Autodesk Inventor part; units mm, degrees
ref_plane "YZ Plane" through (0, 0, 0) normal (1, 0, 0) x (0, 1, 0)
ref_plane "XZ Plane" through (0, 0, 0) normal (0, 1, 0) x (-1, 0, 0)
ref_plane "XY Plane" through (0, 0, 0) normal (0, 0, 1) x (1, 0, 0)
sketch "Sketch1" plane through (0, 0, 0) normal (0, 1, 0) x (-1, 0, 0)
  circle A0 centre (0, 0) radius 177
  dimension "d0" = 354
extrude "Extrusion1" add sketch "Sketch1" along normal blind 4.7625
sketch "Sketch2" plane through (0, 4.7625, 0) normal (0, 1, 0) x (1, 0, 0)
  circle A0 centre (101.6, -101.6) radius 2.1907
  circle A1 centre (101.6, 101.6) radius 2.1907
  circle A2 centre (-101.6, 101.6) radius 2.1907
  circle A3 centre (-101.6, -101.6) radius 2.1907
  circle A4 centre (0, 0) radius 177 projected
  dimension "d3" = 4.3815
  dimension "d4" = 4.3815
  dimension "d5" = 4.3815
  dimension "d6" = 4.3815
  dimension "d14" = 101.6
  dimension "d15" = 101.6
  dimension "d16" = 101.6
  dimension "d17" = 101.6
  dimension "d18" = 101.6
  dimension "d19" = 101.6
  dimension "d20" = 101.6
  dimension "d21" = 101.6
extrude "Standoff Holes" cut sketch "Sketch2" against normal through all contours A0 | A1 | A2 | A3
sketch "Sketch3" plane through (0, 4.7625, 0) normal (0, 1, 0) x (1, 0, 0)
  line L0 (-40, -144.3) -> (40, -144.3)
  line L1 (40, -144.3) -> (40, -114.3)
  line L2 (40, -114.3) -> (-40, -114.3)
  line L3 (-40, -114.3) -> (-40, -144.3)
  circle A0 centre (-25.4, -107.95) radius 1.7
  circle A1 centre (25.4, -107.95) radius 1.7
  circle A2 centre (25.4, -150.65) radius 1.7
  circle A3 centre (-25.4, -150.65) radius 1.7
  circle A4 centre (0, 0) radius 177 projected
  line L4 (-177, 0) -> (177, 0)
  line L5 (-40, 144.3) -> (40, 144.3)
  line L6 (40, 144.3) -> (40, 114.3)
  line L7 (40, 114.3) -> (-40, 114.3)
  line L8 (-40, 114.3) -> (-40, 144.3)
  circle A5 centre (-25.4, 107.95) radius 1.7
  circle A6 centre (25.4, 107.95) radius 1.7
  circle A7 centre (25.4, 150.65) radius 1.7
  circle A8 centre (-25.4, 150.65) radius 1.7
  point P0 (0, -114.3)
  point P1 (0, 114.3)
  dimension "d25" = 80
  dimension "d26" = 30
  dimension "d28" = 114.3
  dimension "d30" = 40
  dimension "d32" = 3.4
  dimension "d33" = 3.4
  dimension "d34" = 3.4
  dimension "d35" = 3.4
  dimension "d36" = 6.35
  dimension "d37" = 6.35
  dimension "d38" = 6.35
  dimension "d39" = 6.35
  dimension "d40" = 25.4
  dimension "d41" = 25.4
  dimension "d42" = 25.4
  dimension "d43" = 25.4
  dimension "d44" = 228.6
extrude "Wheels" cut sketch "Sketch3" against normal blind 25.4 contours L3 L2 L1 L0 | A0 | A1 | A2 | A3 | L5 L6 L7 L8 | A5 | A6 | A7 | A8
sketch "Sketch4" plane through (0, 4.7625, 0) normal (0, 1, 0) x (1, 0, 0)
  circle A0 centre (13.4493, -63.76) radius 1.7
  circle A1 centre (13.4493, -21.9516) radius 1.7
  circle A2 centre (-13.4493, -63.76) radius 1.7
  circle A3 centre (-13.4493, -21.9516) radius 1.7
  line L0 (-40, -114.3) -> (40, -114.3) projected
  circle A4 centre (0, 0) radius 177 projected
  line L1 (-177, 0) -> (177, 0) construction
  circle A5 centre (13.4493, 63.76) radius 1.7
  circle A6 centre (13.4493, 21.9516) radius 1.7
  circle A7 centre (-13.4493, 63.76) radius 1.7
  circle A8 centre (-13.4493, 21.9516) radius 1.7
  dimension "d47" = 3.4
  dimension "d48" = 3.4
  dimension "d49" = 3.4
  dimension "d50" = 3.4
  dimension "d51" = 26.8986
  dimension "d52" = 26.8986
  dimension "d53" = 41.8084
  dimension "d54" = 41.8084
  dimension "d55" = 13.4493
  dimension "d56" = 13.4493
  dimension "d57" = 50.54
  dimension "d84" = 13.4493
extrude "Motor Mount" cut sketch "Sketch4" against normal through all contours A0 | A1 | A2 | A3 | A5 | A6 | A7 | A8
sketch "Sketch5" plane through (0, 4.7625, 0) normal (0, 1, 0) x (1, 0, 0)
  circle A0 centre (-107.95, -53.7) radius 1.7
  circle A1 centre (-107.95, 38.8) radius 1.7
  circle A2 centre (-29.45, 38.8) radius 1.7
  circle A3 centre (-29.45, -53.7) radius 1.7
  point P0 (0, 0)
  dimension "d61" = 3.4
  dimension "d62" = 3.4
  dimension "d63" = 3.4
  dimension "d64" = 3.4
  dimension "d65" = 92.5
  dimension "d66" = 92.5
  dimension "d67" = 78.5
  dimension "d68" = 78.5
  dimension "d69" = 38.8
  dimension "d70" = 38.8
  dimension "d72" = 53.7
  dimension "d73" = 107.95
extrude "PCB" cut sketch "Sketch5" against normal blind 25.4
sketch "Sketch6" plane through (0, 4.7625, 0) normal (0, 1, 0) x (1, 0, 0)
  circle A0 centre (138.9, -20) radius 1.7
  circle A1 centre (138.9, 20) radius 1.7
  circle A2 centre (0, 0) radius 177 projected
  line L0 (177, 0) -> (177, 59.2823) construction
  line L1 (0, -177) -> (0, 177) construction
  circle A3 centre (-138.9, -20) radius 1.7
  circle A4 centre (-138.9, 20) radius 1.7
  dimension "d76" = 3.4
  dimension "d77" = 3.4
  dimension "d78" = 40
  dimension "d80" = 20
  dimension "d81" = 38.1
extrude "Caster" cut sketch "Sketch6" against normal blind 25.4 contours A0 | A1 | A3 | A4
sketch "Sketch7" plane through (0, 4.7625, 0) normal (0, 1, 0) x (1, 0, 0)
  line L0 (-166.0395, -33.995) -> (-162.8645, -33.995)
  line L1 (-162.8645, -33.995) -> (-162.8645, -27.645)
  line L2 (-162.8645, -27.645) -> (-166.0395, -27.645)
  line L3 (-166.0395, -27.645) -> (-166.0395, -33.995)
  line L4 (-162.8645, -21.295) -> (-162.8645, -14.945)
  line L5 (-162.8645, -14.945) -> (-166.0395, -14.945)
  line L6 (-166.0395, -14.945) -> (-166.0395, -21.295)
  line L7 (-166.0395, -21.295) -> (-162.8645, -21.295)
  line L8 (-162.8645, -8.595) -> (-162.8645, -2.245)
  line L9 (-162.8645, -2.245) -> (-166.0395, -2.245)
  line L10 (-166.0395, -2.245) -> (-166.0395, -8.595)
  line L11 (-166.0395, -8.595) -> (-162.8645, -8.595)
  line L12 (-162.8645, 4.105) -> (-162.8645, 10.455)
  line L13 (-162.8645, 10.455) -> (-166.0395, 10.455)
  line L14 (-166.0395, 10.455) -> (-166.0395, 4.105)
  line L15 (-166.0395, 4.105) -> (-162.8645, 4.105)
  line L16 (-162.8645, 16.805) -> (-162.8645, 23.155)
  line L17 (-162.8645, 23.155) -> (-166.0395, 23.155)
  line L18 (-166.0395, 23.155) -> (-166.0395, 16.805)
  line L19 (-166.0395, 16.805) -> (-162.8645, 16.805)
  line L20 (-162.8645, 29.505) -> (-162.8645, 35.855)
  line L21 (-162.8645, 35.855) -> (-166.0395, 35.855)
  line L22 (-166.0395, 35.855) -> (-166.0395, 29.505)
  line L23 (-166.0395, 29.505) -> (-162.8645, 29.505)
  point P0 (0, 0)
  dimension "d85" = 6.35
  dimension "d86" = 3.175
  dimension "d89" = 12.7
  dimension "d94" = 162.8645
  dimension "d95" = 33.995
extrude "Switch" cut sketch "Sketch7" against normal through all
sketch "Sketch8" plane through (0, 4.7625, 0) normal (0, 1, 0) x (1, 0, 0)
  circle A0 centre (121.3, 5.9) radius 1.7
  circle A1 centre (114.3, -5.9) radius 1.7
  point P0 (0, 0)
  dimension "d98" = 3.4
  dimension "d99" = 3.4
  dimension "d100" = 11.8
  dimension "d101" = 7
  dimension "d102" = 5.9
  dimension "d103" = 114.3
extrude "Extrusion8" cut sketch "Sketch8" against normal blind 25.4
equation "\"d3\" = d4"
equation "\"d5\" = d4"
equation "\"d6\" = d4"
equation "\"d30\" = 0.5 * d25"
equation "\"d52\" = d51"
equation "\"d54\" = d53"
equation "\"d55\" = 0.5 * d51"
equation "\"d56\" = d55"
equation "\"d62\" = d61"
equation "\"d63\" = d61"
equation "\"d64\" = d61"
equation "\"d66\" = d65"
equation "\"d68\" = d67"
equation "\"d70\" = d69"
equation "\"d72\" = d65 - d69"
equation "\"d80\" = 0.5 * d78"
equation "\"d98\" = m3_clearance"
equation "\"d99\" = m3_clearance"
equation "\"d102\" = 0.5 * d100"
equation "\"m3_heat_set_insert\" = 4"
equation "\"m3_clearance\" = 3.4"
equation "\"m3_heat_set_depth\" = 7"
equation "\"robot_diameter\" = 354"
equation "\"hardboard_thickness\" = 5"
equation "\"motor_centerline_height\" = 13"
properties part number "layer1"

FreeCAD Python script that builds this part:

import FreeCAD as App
import Part
import Sketcher
from FreeCAD import Vector
Q = App.Units.Quantity

doc = App.newDocument("Part")
body = doc.addObject("PartDesign::Body", "Body")

# Sketch on XZ plane
sketch1 = body.newObject("Sketcher::SketchObject", "Sketch")
sketch1.AttachmentSupport = (doc.getObject("XZ_Plane"), [""])
sketch1.MapMode = "FlatFace"
sketch1.addGeometry(Part.Circle(Vector(0, 0, 0), Vector(0, 0, 1), 177), False)
sketch1.addConstraint(Sketcher.Constraint("Coincident", 0, 3, -1, 1))
sketch1.addConstraint(Sketcher.Constraint("Diameter", 0, Q("13.937 in")))
pad1 = body.newObject("PartDesign::Pad", "Pad")
pad1.Profile = sketch1
pad1.Length = Q("0.1875 in")
pad1.Reversed = True

# Sketch on XZ plane
sketch2 = body.newObject("Sketcher::SketchObject", "Sketch001")
sketch2.AttachmentSupport = (doc.getObject("XZ_Plane"), [""])
sketch2.MapMode = "FlatFace"
sketch2.AttachmentOffset = App.Placement(Vector(0, 0, -0.1875 * 25.4), App.Rotation())
sketch2.addGeometry(Part.Circle(Vector(101.6, 101.6, 0), Vector(0, 0, 1), 2.2), False)
sketch2.addGeometry(Part.Circle(Vector(101.6, -101.6, 0), Vector(0, 0, 1), 2.2), False)
sketch2.addGeometry(Part.Circle(Vector(-101.6, -101.6, 0), Vector(0, 0, 1), 2.2), False)
sketch2.addGeometry(Part.Circle(Vector(-101.6, 101.6, 0), Vector(0, 0, 1), 2.2), False)
sketch2.addConstraint(Sketcher.Constraint("Equal", 0, 1))
sketch2.addConstraint(Sketcher.Constraint("Equal", 1, 2))
sketch2.addConstraint(Sketcher.Constraint("Equal", 2, 3))
sketch2.addConstraint(Sketcher.Constraint("Symmetric", 0, 3, 2, 3, -1, 1))
sketch2.addConstraint(Sketcher.Constraint("Symmetric", 1, 3, 3, 3, -1, 1))
sketch2.addConstraint(Sketcher.Constraint("Symmetric", 1, 3, 2, 3, -2))
sketch2.addConstraint(Sketcher.Constraint("DistanceX", -1, 1, 0, 3, Q("4 in")))
sketch2.addConstraint(Sketcher.Constraint("DistanceY", -1, 1, 0, 3, Q("4 in")))
sketch2.addConstraint(Sketcher.Constraint("Diameter", 0, Q("0.1725 in")))
pocket1 = body.newObject("PartDesign::Pocket", "Pocket")
pocket1.Profile = sketch2
pocket1.Type = "ThroughAll"
pocket1.Reversed = True

# Sketch on XZ plane
sketch3 = body.newObject("Sketcher::SketchObject", "Sketch002")
sketch3.AttachmentSupport = (doc.getObject("XZ_Plane"), [""])
sketch3.MapMode = "FlatFace"
sketch3.AttachmentOffset = App.Placement(Vector(0, 0, -0.1875 * 25.4), App.Rotation())
sketch3.addGeometry(Part.LineSegment(Vector(-40, 114.3, 0), Vector(-40, 144.3, 0)), False)
sketch3.addGeometry(Part.LineSegment(Vector(-40, 144.3, 0), Vector(40, 144.3, 0)), False)
sketch3.addGeometry(Part.LineSegment(Vector(40, 144.3, 0), Vector(40, 114.3, 0)), False)
sketch3.addGeometry(Part.LineSegment(Vector(40, 114.3, 0), Vector(-40, 114.3, 0)), False)
sketch3.addGeometry(Part.Circle(Vector(-25.4, 108, 0), Vector(0, 0, 1), 1.7), False)
sketch3.addGeometry(Part.Circle(Vector(25.4, 108, 0), Vector(0, 0, 1), 1.7), False)
sketch3.addGeometry(Part.Circle(Vector(25.4, 150.7, 0), Vector(0, 0, 1), 1.7), False)
sketch3.addGeometry(Part.Circle(Vector(-25.4, 150.7, 0), Vector(0, 0, 1), 1.7), False)
sketch3.addGeometry(Part.LineSegment(Vector(40, -144.3, 0), Vector(-40, -144.3, 0)), False)
sketch3.addGeometry(Part.LineSegment(Vector(-40, -144.3, 0), Vector(-40, -114.3, 0)), False)
sketch3.addGeometry(Part.LineSegment(Vector(-40, -114.3, 0), Vector(40, -114.3, 0)), False)
sketch3.addGeometry(Part.LineSegment(Vector(40, -114.3, 0), Vector(40, -144.3, 0)), False)
sketch3.addGeometry(Part.Circle(Vector(-25.4, -108, 0), Vector(0, 0, 1), 1.7), False)
sketch3.addGeometry(Part.Circle(Vector(25.4, -108, 0), Vector(0, 0, 1), 1.7), False)
sketch3.addGeometry(Part.Circle(Vector(25.4, -150.7, 0), Vector(0, 0, 1), 1.7), False)
sketch3.addGeometry(Part.Circle(Vector(-25.4, -150.7, 0), Vector(0, 0, 1), 1.7), False)
sketch3.addConstraint(Sketcher.Constraint("Coincident", 0, 2, 1, 1))
sketch3.addConstraint(Sketcher.Constraint("Coincident", 1, 2, 2, 1))
sketch3.addConstraint(Sketcher.Constraint("Coincident", 2, 2, 3, 1))
sketch3.addConstraint(Sketcher.Constraint("Coincident", 3, 2, 0, 1))
sketch3.addConstraint(Sketcher.Constraint("Coincident", 8, 2, 9, 1))
sketch3.addConstraint(Sketcher.Constraint("Coincident", 9, 2, 10, 1))
sketch3.addConstraint(Sketcher.Constraint("Coincident", 10, 2, 11, 1))
sketch3.addConstraint(Sketcher.Constraint("Coincident", 11, 2, 8, 1))
sketch3.addConstraint(Sketcher.Constraint("Vertical", 0))
sketch3.addConstraint(Sketcher.Constraint("Horizontal", 1))
sketch3.addConstraint(Sketcher.Constraint("Vertical", 2))
sketch3.addConstraint(Sketcher.Constraint("Horizontal", 3))
sketch3.addConstraint(Sketcher.Constraint("Horizontal", 8))
sketch3.addConstraint(Sketcher.Constraint("Vertical", 9))
sketch3.addConstraint(Sketcher.Constraint("Horizontal", 10))
sketch3.addConstraint(Sketcher.Constraint("Vertical", 11))
sketch3.addConstraint(Sketcher.Constraint("Equal", 4, 5))
sketch3.addConstraint(Sketcher.Constraint("Equal", 5, 6))
sketch3.addConstraint(Sketcher.Constraint("Equal", 6, 7))
sketch3.addConstraint(Sketcher.Constraint("Equal", 7, 12))
sketch3.addConstraint(Sketcher.Constraint("Equal", 12, 13))
sketch3.addConstraint(Sketcher.Constraint("Equal", 13, 14))
sketch3.addConstraint(Sketcher.Constraint("Equal", 14, 15))
sketch3.addConstraint(Sketcher.Constraint("Symmetric", 5, 3, 12, 3, -1, 1))
sketch3.addConstraint(Sketcher.Constraint("Symmetric", 4, 3, 13, 3, -1, 1))
sketch3.addConstraint(Sketcher.Constraint("Symmetric", 7, 3, 14, 3, -1, 1))
sketch3.addConstraint(Sketcher.Constraint("Symmetric", 6, 3, 15, 3, -1, 1))
sketch3.addConstraint(Sketcher.Constraint("Symmetric", 1, 2, 8, 2, -1, 1))
sketch3.addConstraint(Sketcher.Constraint("Symmetric", 3, 2, 10, 2, -1, 1))
sketch3.addConstraint(Sketcher.Constraint("Symmetric", 4, 3, 5, 3, -2))
sketch3.addConstraint(Sketcher.Constraint("Symmetric", 6, 3, 7, 3, -2))
sketch3.addConstraint(Sketcher.Constraint("Vertical", 5, 3, 6, 3))
sketch3.addConstraint(Sketcher.Constraint("Vertical", 3, 2, 8, 2))
sketch3.addConstraint(Sketcher.Constraint("DistanceX", 4, 3, -1, 1, Q("1 in")))
sketch3.addConstraint(Sketcher.Constraint("DistanceY", -1, 1, 2, 2, Q("4.5 in")))
sketch3.addConstraint(Sketcher.Constraint("Diameter", 4, 3.4))
sketch3.addConstraint(Sketcher.Constraint("DistanceY", 0, 2, 7, 3, Q("0.25 in")))
sketch3.addConstraint(Sketcher.Constraint("DistanceY", 5, 3, 2, 2, Q("0.25 in")))
sketch3.addConstraint(Sketcher.Constraint("DistanceX", 1, 1, 1, 2, Q("3.1496 in")))
sketch3.addConstraint(Sketcher.Constraint("DistanceY", 0, 1, 0, 2, Q("1.1811 in")))
pocket2 = body.newObject("PartDesign::Pocket", "Pocket001")
pocket2.Profile = sketch3
pocket2.Length = Q("1 in")
pocket2.Reversed = True

# Sketch on XZ plane
sketch4 = body.newObject("Sketcher::SketchObject", "Sketch003")
sketch4.AttachmentSupport = (doc.getObject("XZ_Plane"), [""])
sketch4.MapMode = "FlatFace"
sketch4.AttachmentOffset = App.Placement(Vector(0, 0, -0.1875 * 25.4), App.Rotation())
sketch4.addGeometry(Part.Circle(Vector(13.4, 63.8, 0), Vector(0, 0, 1), 1.7), False)
sketch4.addGeometry(Part.Circle(Vector(13.4, 22, 0), Vector(0, 0, 1), 1.7), False)
sketch4.addGeometry(Part.Circle(Vector(-13.4, 63.8, 0), Vector(0, 0, 1), 1.7), False)
sketch4.addGeometry(Part.Circle(Vector(-13.4, 22, 0), Vector(0, 0, 1), 1.7), False)
sketch4.addGeometry(Part.Circle(Vector(13.4, -63.8, 0), Vector(0, 0, 1), 1.7), False)
sketch4.addGeometry(Part.Circle(Vector(13.4, -22, 0), Vector(0, 0, 1), 1.7), False)
sketch4.addGeometry(Part.Circle(Vector(-13.4, -63.8, 0), Vector(0, 0, 1), 1.7), False)
sketch4.addGeometry(Part.Circle(Vector(-13.4, -22, 0), Vector(0, 0, 1), 1.7), False)
sketch4.addConstraint(Sketcher.Constraint("Equal", 0, 1))
sketch4.addConstraint(Sketcher.Constraint("Equal", 1, 2))
sketch4.addConstraint(Sketcher.Constraint("Equal", 2, 3))
sketch4.addConstraint(Sketcher.Constraint("Equal", 3, 4))
sketch4.addConstraint(Sketcher.Constraint("Equal", 4, 5))
sketch4.addConstraint(Sketcher.Constraint("Equal", 5, 6))
sketch4.addConstraint(Sketcher.Constraint("Equal", 6, 7))
sketch4.addConstraint(Sketcher.Constraint("Symmetric", 2, 3, 4, 3, -1, 1))
sketch4.addConstraint(Sketcher.Constraint("Symmetric", 3, 3, 5, 3, -1, 1))
sketch4.addConstraint(Sketcher.Constraint("Symmetric", 0, 3, 6, 3, -1, 1))
sketch4.addConstraint(Sketcher.Constraint("Symmetric", 1, 3, 7, 3, -1, 1))
sketch4.addConstraint(Sketcher.Constraint("Symmetric", 0, 3, 2, 3, -2))
sketch4.addConstraint(Sketcher.Constraint("Symmetric", 1, 3, 3, 3, -2))
sketch4.addConstraint(Sketcher.Constraint("Vertical", 0, 3, 1, 3))
sketch4.addConstraint(Sketcher.Constraint("Diameter", 0, 3.4))
sketch4.addConstraint(Sketcher.Constraint("DistanceY", 1, 3, 0, 3, Q("1.646 in")))
sketch4.addConstraint(Sketcher.Constraint("DistanceX", 2, 3, 0, 3, Q("1.059 in")))
sketch4.addConstraint(Sketcher.Constraint("DistanceY", -1, 1, 0, 3, 63.76))
pocket3 = body.newObject("PartDesign::Pocket", "Pocket002")
pocket3.Profile = sketch4
pocket3.Type = "ThroughAll"
pocket3.Reversed = True

# Sketch on XZ plane
sketch5 = body.newObject("Sketcher::SketchObject", "Sketch004")
sketch5.AttachmentSupport = (doc.getObject("XZ_Plane"), [""])
sketch5.MapMode = "FlatFace"
sketch5.AttachmentOffset = App.Placement(Vector(0, 0, -0.1875 * 25.4), App.Rotation())
sketch5.addGeometry(Part.Circle(Vector(-108, 53.7, 0), Vector(0, 0, 1), 1.7), False)
sketch5.addGeometry(Part.Circle(Vector(-108, -38.8, 0), Vector(0, 0, 1), 1.7), False)
sketch5.addGeometry(Part.Circle(Vector(-29.4, -38.8, 0), Vector(0, 0, 1), 1.7), False)
sketch5.addGeometry(Part.Circle(Vector(-29.4, 53.7, 0), Vector(0, 0, 1), 1.7), False)
sketch5.addConstraint(Sketcher.Constraint("Equal", 0, 1))
sketch5.addConstraint(Sketcher.Constraint("Equal", 1, 2))
sketch5.addConstraint(Sketcher.Constraint("Equal", 2, 3))
sketch5.addConstraint(Sketcher.Constraint("Horizontal", 1, 3, 2, 3))
sketch5.addConstraint(Sketcher.Constraint("Horizontal", 0, 3, 3, 3))
sketch5.addConstraint(Sketcher.Constraint("Vertical", 0, 3, 1, 3))
sketch5.addConstraint(Sketcher.Constraint("Vertical", 2, 3, 3, 3))
sketch5.addConstraint(Sketcher.Constraint("Diameter", 0, 3.4))
sketch5.addConstraint(Sketcher.Constraint("DistanceX", 0, 3, -1, 1, Q("4.25 in")))
sketch5.addConstraint(Sketcher.Constraint("DistanceY", -1, 1, 0, 3, 53.7))
sketch5.addConstraint(Sketcher.Constraint("DistanceY", 1, 3, -1, 1, 38.8))
sketch5.addConstraint(Sketcher.Constraint("DistanceX", 1, 3, 2, 3, 78.5))
pocket4 = body.newObject("PartDesign::Pocket", "Pocket003")
pocket4.Profile = sketch5
pocket4.Length = Q("1 in")
pocket4.Reversed = True

# Sketch on XZ plane
sketch6 = body.newObject("Sketcher::SketchObject", "Sketch005")
sketch6.AttachmentSupport = (doc.getObject("XZ_Plane"), [""])
sketch6.MapMode = "FlatFace"
sketch6.AttachmentOffset = App.Placement(Vector(0, 0, -0.1875 * 25.4), App.Rotation())
sketch6.addGeometry(Part.Circle(Vector(138.9, 20, 0), Vector(0, 0, 1), 1.7), False)
sketch6.addGeometry(Part.Circle(Vector(138.9, -20, 0), Vector(0, 0, 1), 1.7), False)
sketch6.addGeometry(Part.Circle(Vector(-138.9, 20, 0), Vector(0, 0, 1), 1.7), False)
sketch6.addGeometry(Part.Circle(Vector(-138.9, -20, 0), Vector(0, 0, 1), 1.7), False)
sketch6.addConstraint(Sketcher.Constraint("Equal", 0, 1))
sketch6.addConstraint(Sketcher.Constraint("Equal", 1, 2))
sketch6.addConstraint(Sketcher.Constraint("Equal", 2, 3))
sketch6.addConstraint(Sketcher.Constraint("Symmetric", 1, 3, 2, 3, -1, 1))
sketch6.addConstraint(Sketcher.Constraint("Symmetric", 0, 3, 3, 3, -1, 1))
sketch6.addConstraint(Sketcher.Constraint("Symmetric", 0, 3, 2, 3, -2))
sketch6.addConstraint(Sketcher.Constraint("Diameter", 0, 3.4))
sketch6.addConstraint(Sketcher.Constraint("DistanceY", -1, 1, 0, 3, Q("0.7874 in")))
sketch6.addConstraint(Sketcher.Constraint("DistanceX", 2, 3, 0, 3, Q("10.937 in")))
pocket5 = body.newObject("PartDesign::Pocket", "Pocket004")
pocket5.Profile = sketch6
pocket5.Length = Q("1 in")
pocket5.Reversed = True

# Sketch on XZ plane
sketch7 = body.newObject("Sketcher::SketchObject", "Sketch006")
sketch7.AttachmentSupport = (doc.getObject("XZ_Plane"), [""])
sketch7.MapMode = "FlatFace"
sketch7.AttachmentOffset = App.Placement(Vector(0, 0, -0.1875 * 25.4), App.Rotation())
sketch7.addGeometry(Part.LineSegment(Vector(-166, 27.6, 0), Vector(-166, 34, 0)), False)
sketch7.addGeometry(Part.LineSegment(Vector(-166, 34, 0), Vector(-162.9, 34, 0)), False)
sketch7.addGeometry(Part.LineSegment(Vector(-162.9, 34, 0), Vector(-162.9, 27.6, 0)), False)
sketch7.addGeometry(Part.LineSegment(Vector(-162.9, 27.6, 0), Vector(-166, 27.6, 0)), False)
sketch7.addGeometry(Part.LineSegment(Vector(-166, 21.3, 0), Vector(-162.9, 21.3, 0)), False)
sketch7.addGeometry(Part.LineSegment(Vector(-162.9, 21.3, 0), Vector(-162.9, 14.9, 0)), False)
sketch7.addGeometry(Part.LineSegment(Vector(-162.9, 14.9, 0), Vector(-166, 14.9, 0)), False)
sketch7.addGeometry(Part.LineSegment(Vector(-166, 14.9, 0), Vector(-166, 21.3, 0)), False)
sketch7.addGeometry(Part.LineSegment(Vector(-166, 8.6, 0), Vector(-162.9, 8.6, 0)), False)
sketch7.addGeometry(Part.LineSegment(Vector(-162.9, 8.6, 0), Vector(-162.9, 2.2, 0)), False)
sketch7.addGeometry(Part.LineSegment(Vector(-162.9, 2.2, 0), Vector(-166, 2.2, 0)), False)
sketch7.addGeometry(Part.LineSegment(Vector(-166, 2.2, 0), Vector(-166, 8.6, 0)), False)
sketch7.addGeometry(Part.LineSegment(Vector(-166, -4.1, 0), Vector(-162.9, -4.1, 0)), False)
sketch7.addGeometry(Part.LineSegment(Vector(-162.9, -4.1, 0), Vector(-162.9, -10.5, 0)), False)
sketch7.addGeometry(Part.LineSegment(Vector(-162.9, -10.5, 0), Vector(-166, -10.5, 0)), False)
sketch7.addGeometry(Part.LineSegment(Vector(-166, -10.5, 0), Vector(-166, -4.1, 0)), False)
sketch7.addGeometry(Part.LineSegment(Vector(-166, -16.8, 0), Vector(-162.9, -16.8, 0)), False)
sketch7.addGeometry(Part.LineSegment(Vector(-162.9, -16.8, 0), Vector(-162.9, -23.2, 0)), False)
sketch7.addGeometry(Part.LineSegment(Vector(-162.9, -23.2, 0), Vector(-166, -23.2, 0)), False)
sketch7.addGeometry(Part.LineSegment(Vector(-166, -23.2, 0), Vector(-166, -16.8, 0)), False)
sketch7.addGeometry(Part.LineSegment(Vector(-166, -29.5, 0), Vector(-162.9, -29.5, 0)), False)
sketch7.addGeometry(Part.LineSegment(Vector(-162.9, -29.5, 0), Vector(-162.9, -35.9, 0)), False)
sketch7.addGeometry(Part.LineSegment(Vector(-162.9, -35.9, 0), Vector(-166, -35.9, 0)), False)
sketch7.addGeometry(Part.LineSegment(Vector(-166, -35.9, 0), Vector(-166, -29.5, 0)), False)
sketch7.addConstraint(Sketcher.Constraint("Coincident", 0, 2, 1, 1))
sketch7.addConstraint(Sketcher.Constraint("Coincident", 1, 2, 2, 1))
sketch7.addConstraint(Sketcher.Constraint("Coincident", 2, 2, 3, 1))
sketch7.addConstraint(Sketcher.Constraint("Coincident", 3, 2, 0, 1))
sketch7.addConstraint(Sketcher.Constraint("Coincident", 4, 2, 5, 1))
sketch7.addConstraint(Sketcher.Constraint("Coincident", 5, 2, 6, 1))
sketch7.addConstraint(Sketcher.Constraint("Coincident", 6, 2, 7, 1))
sketch7.addConstraint(Sketcher.Constraint("Coincident", 7, 2, 4, 1))
sketch7.addConstraint(Sketcher.Constraint("Coincident", 8, 2, 9, 1))
sketch7.addConstraint(Sketcher.Constraint("Coincident", 9, 2, 10, 1))
sketch7.addConstraint(Sketcher.Constraint("Coincident", 10, 2, 11, 1))
sketch7.addConstraint(Sketcher.Constraint("Coincident", 11, 2, 8, 1))
sketch7.addConstraint(Sketcher.Constraint("Coincident", 12, 2, 13, 1))
sketch7.addConstraint(Sketcher.Constraint("Coincident", 13, 2, 14, 1))
sketch7.addConstraint(Sketcher.Constraint("Coincident", 14, 2, 15, 1))
sketch7.addConstraint(Sketcher.Constraint("Coincident", 15, 2, 12, 1))
sketch7.addConstraint(Sketcher.Constraint("Coincident", 16, 2, 17, 1))
sketch7.addConstraint(Sketcher.Constraint("Coincident", 17, 2, 18, 1))
sketch7.addConstraint(Sketcher.Constraint("Coincident", 18, 2, 19, 1))
sketch7.addConstraint(Sketcher.Constraint("Coincident", 19, 2, 16, 1))
sketch7.addConstraint(Sketcher.Constraint("Coincident", 20, 2, 21, 1))
sketch7.addConstraint(Sketcher.Constraint("Coincident", 21, 2, 22, 1))
sketch7.addConstraint(Sketcher.Constraint("Coincident", 22, 2, 23, 1))
sketch7.addConstraint(Sketcher.Constraint("Coincident", 23, 2, 20, 1))
sketch7.addConstraint(Sketcher.Constraint("Vertical", 0))
sketch7.addConstraint(Sketcher.Constraint("Horizontal", 1))
sketch7.addConstraint(Sketcher.Constraint("Vertical", 2))
sketch7.addConstraint(Sketcher.Constraint("Horizontal", 3))
sketch7.addConstraint(Sketcher.Constraint("Horizontal", 4))
sketch7.addConstraint(Sketcher.Constraint("Vertical", 5))
sketch7.addConstraint(Sketcher.Constraint("Horizontal", 6))
sketch7.addConstraint(Sketcher.Constraint("Vertical", 7))
sketch7.addConstraint(Sketcher.Constraint("Horizontal", 8))
sketch7.addConstraint(Sketcher.Constraint("Vertical", 9))
sketch7.addConstraint(Sketcher.Constraint("Horizontal", 10))
sketch7.addConstraint(Sketcher.Constraint("Vertical", 11))
sketch7.addConstraint(Sketcher.Constraint("Horizontal", 12))
sketch7.addConstraint(Sketcher.Constraint("Vertical", 13))
sketch7.addConstraint(Sketcher.Constraint("Horizontal", 14))
sketch7.addConstraint(Sketcher.Constraint("Vertical", 15))
sketch7.addConstraint(Sketcher.Constraint("Horizontal", 16))
sketch7.addConstraint(Sketcher.Constraint("Vertical", 17))
sketch7.addConstraint(Sketcher.Constraint("Horizontal", 18))
sketch7.addConstraint(Sketcher.Constraint("Vertical", 19))
sketch7.addConstraint(Sketcher.Constraint("Horizontal", 20))
sketch7.addConstraint(Sketcher.Constraint("Vertical", 21))
sketch7.addConstraint(Sketcher.Constraint("Horizontal", 22))
sketch7.addConstraint(Sketcher.Constraint("Vertical", 23))
sketch7.addConstraint(Sketcher.Constraint("Vertical", 2, 2, 4, 2))
sketch7.addConstraint(Sketcher.Constraint("Vertical", 3, 2, 6, 2))
sketch7.addConstraint(Sketcher.Constraint("Vertical", 5, 2, 8, 2))
sketch7.addConstraint(Sketcher.Constraint("Vertical", 7, 2, 10, 2))
sketch7.addConstraint(Sketcher.Constraint("Vertical", 9, 2, 12, 2))
sketch7.addConstraint(Sketcher.Constraint("Vertical", 11, 2, 14, 2))
sketch7.addConstraint(Sketcher.Constraint("Vertical", 13, 2, 16, 2))
sketch7.addConstraint(Sketcher.Constraint("Vertical", 15, 2, 18, 2))
sketch7.addConstraint(Sketcher.Constraint("Vertical", 17, 2, 20, 2))
sketch7.addConstraint(Sketcher.Constraint("Vertical", 19, 2, 22, 2))
sketch7.addConstraint(Sketcher.Constraint("Equal", 2, 5))
sketch7.addConstraint(Sketcher.Constraint("Equal", 7, 9))
sketch7.addConstraint(Sketcher.Constraint("Equal", 11, 13))
sketch7.addConstraint(Sketcher.Constraint("Equal", 15, 17))
sketch7.addConstraint(Sketcher.Constraint("Equal", 19, 21))
sketch7.addConstraint(Sketcher.Constraint("DistanceY", 0, 1, 0, 2, Q("0.25 in")))
sketch7.addConstraint(Sketcher.Constraint("DistanceY", 4, 2, 1, 2, Q("0.5 in")))
sketch7.addConstraint(Sketcher.Constraint("DistanceY", 8, 2, 4, 2, Q("0.5 in")))
sketch7.addConstraint(Sketcher.Constraint("DistanceY", 12, 2, 8, 2, Q("0.5 in")))
sketch7.addConstraint(Sketcher.Constraint("DistanceY", 16, 2, 12, 2, Q("0.5 in")))
sketch7.addConstraint(Sketcher.Constraint("DistanceY", 20, 2, 16, 2, Q("0.5 in")))
sketch7.addConstraint(Sketcher.Constraint("DistanceX", 1, 1, 1, 2, Q("0.125 in")))
sketch7.addConstraint(Sketcher.Constraint("DistanceX", 1, 2, -1, 1, Q("6.412 in")))
sketch7.addConstraint(Sketcher.Constraint("DistanceY", -1, 1, 0, 2, 33.995))
pocket6 = body.newObject("PartDesign::Pocket", "Pocket005")
pocket6.Profile = sketch7
pocket6.Type = "ThroughAll"
pocket6.Reversed = True

# Sketch on XZ plane
sketch8 = body.newObject("Sketcher::SketchObject", "Sketch007")
sketch8.AttachmentSupport = (doc.getObject("XZ_Plane"), [""])
sketch8.MapMode = "FlatFace"
sketch8.AttachmentOffset = App.Placement(Vector(0, 0, -0.1875 * 25.4), App.Rotation())
sketch8.addGeometry(Part.Circle(Vector(121.3, -5.9, 0), Vector(0, 0, 1), 1.7), False)
sketch8.addGeometry(Part.Circle(Vector(114.3, 5.9, 0), Vector(0, 0, 1), 1.7), False)
sketch8.addConstraint(Sketcher.Constraint("Equal", 0, 1))
sketch8.addConstraint(Sketcher.Constraint("DistanceX", -1, 1, 1, 3, Q("4.5 in")))
sketch8.addConstraint(Sketcher.Constraint("Diameter", 0, 3.4))
sketch8.addConstraint(Sketcher.Constraint("DistanceX", 1, 3, 0, 3, Q("0.2756 in")))
sketch8.addConstraint(Sketcher.Constraint("DistanceY", 0, 3, -1, 1, 5.9))
sketch8.addConstraint(Sketcher.Constraint("DistanceY", -1, 1, 1, 3, 5.9))
pocket7 = body.newObject("PartDesign::Pocket", "Pocket006")
pocket7.Profile = sketch8
pocket7.Length = Q("1 in")
pocket7.Reversed = True

doc.recompute()
